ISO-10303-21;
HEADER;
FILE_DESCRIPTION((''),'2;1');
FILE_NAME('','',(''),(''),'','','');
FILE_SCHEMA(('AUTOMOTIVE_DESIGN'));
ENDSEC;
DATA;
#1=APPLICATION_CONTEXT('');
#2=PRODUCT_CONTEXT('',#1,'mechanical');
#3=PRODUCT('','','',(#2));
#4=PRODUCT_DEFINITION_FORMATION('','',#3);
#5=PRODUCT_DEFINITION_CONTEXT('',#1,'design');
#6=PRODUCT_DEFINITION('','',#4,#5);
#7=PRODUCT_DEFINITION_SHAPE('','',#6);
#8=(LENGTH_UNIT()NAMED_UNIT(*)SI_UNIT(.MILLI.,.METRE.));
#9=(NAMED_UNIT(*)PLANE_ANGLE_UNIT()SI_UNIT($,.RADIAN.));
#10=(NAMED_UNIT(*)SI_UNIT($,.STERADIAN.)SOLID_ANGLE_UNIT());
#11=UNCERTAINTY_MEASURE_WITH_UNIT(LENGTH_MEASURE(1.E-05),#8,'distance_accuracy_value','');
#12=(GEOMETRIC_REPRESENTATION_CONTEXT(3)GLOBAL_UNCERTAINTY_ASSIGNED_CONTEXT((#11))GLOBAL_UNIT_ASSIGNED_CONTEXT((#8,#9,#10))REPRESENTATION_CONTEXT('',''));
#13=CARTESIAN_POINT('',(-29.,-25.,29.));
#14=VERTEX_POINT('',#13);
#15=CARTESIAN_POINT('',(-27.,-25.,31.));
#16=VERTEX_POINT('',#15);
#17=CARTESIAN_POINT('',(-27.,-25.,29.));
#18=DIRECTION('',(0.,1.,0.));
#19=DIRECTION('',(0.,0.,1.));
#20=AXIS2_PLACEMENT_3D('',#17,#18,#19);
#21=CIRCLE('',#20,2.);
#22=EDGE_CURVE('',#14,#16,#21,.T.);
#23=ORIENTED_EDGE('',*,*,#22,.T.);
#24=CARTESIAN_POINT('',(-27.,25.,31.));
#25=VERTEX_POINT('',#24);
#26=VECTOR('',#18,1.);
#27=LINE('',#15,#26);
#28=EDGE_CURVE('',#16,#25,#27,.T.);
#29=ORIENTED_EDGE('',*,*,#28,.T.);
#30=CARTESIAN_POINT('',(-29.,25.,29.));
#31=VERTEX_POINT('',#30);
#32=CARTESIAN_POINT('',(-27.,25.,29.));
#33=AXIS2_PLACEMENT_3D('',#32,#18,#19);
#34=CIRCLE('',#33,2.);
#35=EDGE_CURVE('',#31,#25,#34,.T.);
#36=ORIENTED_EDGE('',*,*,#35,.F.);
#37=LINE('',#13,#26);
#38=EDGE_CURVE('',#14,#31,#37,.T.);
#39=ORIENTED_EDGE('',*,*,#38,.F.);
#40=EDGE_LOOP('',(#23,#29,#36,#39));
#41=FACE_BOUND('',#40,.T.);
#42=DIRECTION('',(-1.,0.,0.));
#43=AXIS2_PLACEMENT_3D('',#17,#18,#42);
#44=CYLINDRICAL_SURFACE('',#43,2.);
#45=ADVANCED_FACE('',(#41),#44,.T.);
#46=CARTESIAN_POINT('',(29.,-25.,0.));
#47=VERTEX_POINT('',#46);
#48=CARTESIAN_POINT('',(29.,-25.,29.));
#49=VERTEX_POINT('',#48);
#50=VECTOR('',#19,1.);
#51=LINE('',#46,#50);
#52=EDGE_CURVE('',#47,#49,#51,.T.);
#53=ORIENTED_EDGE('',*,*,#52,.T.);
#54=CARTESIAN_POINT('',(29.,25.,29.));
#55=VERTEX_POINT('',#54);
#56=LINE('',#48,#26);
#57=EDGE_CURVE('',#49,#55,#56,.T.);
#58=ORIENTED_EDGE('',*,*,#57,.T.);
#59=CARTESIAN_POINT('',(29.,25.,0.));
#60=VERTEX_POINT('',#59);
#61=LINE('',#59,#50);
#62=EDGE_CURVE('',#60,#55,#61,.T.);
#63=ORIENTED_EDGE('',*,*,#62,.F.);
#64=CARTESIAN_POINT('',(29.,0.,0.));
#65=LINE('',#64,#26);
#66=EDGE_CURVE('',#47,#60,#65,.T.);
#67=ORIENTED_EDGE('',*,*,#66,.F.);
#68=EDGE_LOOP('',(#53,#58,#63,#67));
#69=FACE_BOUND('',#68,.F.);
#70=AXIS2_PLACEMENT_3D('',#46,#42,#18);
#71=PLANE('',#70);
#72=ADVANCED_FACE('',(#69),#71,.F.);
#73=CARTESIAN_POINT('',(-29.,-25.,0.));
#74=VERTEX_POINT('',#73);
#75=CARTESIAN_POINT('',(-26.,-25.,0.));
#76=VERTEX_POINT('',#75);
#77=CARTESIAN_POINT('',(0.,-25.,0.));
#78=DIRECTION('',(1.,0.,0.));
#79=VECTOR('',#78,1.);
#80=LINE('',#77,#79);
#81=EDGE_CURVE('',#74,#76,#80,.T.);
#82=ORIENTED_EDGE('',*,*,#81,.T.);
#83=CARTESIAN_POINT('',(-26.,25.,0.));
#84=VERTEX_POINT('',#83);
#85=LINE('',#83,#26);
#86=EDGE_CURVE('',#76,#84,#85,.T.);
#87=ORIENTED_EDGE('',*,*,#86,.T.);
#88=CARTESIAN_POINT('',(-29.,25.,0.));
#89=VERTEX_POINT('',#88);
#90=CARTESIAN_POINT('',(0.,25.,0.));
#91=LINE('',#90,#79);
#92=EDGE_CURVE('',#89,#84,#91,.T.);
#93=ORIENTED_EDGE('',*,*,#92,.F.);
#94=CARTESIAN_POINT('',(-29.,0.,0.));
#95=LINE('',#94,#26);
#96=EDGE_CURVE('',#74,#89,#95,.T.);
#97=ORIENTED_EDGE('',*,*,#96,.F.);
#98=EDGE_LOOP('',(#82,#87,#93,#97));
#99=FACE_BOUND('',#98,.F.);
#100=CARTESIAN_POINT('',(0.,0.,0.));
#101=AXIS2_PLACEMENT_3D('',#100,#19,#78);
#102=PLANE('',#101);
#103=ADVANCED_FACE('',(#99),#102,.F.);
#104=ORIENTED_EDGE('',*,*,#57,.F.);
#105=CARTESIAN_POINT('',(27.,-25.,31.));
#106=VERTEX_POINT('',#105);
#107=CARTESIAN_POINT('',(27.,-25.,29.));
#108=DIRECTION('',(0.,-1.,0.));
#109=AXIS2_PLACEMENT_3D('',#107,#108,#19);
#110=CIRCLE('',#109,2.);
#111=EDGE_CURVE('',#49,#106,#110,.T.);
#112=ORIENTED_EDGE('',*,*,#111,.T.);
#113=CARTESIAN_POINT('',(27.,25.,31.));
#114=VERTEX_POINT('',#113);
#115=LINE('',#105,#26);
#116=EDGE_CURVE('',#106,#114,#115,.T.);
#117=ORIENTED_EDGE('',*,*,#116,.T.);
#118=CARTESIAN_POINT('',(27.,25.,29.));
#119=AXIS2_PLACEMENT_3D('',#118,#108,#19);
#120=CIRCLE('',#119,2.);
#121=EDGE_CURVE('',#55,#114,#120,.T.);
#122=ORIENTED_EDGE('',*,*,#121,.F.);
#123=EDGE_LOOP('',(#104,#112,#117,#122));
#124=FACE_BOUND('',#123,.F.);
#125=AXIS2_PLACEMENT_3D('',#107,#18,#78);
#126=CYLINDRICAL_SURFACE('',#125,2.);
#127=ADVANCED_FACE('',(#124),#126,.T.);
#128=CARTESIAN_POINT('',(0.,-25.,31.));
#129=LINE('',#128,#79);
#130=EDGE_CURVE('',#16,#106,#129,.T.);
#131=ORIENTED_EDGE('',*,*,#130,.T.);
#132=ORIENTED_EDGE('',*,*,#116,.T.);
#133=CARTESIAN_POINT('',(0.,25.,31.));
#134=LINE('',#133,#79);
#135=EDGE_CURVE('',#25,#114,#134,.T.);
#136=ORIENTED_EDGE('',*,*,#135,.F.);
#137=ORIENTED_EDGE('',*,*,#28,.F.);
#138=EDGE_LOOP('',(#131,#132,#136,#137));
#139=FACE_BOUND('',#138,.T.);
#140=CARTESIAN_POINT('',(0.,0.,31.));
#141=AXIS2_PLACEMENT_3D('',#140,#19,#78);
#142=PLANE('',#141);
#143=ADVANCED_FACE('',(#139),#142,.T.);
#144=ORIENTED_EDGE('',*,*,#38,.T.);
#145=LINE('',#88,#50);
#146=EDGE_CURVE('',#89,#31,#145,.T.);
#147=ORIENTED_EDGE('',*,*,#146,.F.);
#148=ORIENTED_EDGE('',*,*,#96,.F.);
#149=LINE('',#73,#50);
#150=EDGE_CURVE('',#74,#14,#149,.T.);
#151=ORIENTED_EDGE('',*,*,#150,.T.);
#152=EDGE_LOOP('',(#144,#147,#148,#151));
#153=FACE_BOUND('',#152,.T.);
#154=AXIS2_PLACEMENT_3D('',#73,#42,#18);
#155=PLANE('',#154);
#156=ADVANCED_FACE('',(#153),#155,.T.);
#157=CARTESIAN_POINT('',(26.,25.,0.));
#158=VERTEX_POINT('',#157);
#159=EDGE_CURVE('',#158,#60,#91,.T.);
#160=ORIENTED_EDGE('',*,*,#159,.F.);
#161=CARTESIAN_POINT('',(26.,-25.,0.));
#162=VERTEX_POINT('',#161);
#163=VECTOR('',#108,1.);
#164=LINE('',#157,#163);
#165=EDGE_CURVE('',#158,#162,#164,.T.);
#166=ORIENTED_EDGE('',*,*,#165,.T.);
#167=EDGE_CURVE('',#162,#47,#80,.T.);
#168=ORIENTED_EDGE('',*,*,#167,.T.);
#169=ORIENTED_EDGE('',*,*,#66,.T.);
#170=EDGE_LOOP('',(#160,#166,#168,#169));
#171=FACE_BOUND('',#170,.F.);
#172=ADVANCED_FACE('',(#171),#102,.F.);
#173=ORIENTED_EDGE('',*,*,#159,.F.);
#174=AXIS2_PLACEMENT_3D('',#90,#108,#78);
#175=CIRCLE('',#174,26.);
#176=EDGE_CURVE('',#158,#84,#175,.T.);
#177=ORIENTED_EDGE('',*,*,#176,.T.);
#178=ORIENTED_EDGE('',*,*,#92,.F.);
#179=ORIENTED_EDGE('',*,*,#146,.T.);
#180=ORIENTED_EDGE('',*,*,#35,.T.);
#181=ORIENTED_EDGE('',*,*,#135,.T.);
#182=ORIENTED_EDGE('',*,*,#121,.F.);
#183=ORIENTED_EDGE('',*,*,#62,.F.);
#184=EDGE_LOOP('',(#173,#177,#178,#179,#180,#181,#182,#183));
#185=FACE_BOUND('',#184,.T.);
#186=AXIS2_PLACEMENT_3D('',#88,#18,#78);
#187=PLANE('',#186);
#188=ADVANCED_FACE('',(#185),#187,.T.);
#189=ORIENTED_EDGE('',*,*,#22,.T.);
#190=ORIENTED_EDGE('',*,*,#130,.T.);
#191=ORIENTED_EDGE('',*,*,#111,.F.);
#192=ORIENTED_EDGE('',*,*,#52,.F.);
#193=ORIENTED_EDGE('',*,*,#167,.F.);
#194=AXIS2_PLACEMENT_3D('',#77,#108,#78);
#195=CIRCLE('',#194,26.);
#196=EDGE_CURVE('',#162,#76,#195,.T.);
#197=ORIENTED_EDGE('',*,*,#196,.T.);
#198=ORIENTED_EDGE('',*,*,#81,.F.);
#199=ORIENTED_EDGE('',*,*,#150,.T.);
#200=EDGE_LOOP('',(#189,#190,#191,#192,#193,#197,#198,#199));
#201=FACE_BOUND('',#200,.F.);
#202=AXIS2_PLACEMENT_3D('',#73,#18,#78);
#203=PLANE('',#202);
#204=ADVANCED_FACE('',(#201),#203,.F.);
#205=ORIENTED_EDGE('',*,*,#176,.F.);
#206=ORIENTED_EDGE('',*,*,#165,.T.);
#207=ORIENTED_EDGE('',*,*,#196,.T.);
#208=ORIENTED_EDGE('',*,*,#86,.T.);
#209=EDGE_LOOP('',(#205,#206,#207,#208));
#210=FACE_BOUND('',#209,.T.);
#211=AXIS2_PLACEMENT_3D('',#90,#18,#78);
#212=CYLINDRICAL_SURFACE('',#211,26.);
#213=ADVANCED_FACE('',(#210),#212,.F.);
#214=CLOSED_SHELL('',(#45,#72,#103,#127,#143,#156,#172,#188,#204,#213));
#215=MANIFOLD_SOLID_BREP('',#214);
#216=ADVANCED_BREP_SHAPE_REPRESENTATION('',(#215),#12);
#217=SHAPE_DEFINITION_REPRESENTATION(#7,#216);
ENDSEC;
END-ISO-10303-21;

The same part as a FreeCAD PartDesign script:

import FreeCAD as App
import Part
import Sketcher


def edges_at(feature, points):
    """Names of the edges that pass closest to the given points."""
    edges = feature.Shape.Edges
    near = lambda p: min(range(len(edges)), key=lambda i: edges[i].distToShape(Part.Vertex(*p))[0])
    return sorted({f"Edge{near(p) + 1}" for p in points})

doc = App.newDocument("Part")
body = doc.addObject("PartDesign::Body", "Body")

sketch1 = doc.addObject("Sketcher::SketchObject", "Sketch")
body.addObject(sketch1)
sketch1.AttachmentSupport = (doc.XZ_Plane, [""])
sketch1.MapMode = "FlatFace"
sketch1.AttachmentOffset = App.Placement(App.Vector(0, 0, -25), App.Rotation())
sketch1.addGeometry(Part.Circle(App.Vector(0, 0, 0), App.Vector(0, 0, 1), 26), False)
sketch1.addConstraint([
    Sketcher.Constraint("Coincident", 0, 3, -1, 1),
    Sketcher.Constraint("Diameter", 0, 52.0),
])
pad1 = doc.addObject("PartDesign::Pad", "Pad")
body.addObject(pad1)
pad1.Profile = sketch1
pad1.Length = 50
body2 = doc.addObject("PartDesign::Body", "Body001")

sketch2 = doc.addObject("Sketcher::SketchObject", "Sketch001")
body2.addObject(sketch2)
sketch2.AttachmentSupport = (doc.getObject("XY_Plane001"), [""])
sketch2.MapMode = "FlatFace"
sketch2.addGeometry([
    Part.LineSegment(App.Vector(-29, 25, 0), App.Vector(-29, -25, 0)),
    Part.LineSegment(App.Vector(-29, -25, 0), App.Vector(29, -25, 0)),
    Part.LineSegment(App.Vector(29, -25, 0), App.Vector(29, 25, 0)),
    Part.LineSegment(App.Vector(29, 25, 0), App.Vector(-29, 25, 0)),
], False)
sketch2.addConstraint([
    Sketcher.Constraint("Coincident", 0, 2, 1, 1),
    Sketcher.Constraint("Coincident", 1, 2, 2, 1),
    Sketcher.Constraint("Coincident", 2, 2, 3, 1),
    Sketcher.Constraint("Coincident", 3, 2, 0, 1),
    Sketcher.Constraint("Vertical", 0),
    Sketcher.Constraint("Horizontal", 1),
    Sketcher.Constraint("Vertical", 2),
    Sketcher.Constraint("Horizontal", 3),
    Sketcher.Constraint("Symmetric", 0, 2, 2, 2, -1, 1),
    Sketcher.Constraint("DistanceX", 1, 1, 1, 2, 58.0),
    Sketcher.Constraint("DistanceY", 0, 2, 0, 1, 50.0),
])
pad2 = doc.addObject("PartDesign::Pad", "Pad001")
body2.addObject(pad2)
pad2.Profile = sketch2
pad2.Length = 31
doc.recompute()

fillet = doc.addObject("PartDesign::Fillet", "Fillet")
body2.addObject(fillet)
fillet.Base = (pad2, edges_at(pad2, [(-29, 0, 31), (29, 0, 31)]))
fillet.Radius = 2
doc.recompute()

boolean = doc.addObject("PartDesign::Boolean", "Boolean")
body2.addObject(boolean)
boolean.Type = "Cut"
boolean.addObjects([body])

doc.recompute()
